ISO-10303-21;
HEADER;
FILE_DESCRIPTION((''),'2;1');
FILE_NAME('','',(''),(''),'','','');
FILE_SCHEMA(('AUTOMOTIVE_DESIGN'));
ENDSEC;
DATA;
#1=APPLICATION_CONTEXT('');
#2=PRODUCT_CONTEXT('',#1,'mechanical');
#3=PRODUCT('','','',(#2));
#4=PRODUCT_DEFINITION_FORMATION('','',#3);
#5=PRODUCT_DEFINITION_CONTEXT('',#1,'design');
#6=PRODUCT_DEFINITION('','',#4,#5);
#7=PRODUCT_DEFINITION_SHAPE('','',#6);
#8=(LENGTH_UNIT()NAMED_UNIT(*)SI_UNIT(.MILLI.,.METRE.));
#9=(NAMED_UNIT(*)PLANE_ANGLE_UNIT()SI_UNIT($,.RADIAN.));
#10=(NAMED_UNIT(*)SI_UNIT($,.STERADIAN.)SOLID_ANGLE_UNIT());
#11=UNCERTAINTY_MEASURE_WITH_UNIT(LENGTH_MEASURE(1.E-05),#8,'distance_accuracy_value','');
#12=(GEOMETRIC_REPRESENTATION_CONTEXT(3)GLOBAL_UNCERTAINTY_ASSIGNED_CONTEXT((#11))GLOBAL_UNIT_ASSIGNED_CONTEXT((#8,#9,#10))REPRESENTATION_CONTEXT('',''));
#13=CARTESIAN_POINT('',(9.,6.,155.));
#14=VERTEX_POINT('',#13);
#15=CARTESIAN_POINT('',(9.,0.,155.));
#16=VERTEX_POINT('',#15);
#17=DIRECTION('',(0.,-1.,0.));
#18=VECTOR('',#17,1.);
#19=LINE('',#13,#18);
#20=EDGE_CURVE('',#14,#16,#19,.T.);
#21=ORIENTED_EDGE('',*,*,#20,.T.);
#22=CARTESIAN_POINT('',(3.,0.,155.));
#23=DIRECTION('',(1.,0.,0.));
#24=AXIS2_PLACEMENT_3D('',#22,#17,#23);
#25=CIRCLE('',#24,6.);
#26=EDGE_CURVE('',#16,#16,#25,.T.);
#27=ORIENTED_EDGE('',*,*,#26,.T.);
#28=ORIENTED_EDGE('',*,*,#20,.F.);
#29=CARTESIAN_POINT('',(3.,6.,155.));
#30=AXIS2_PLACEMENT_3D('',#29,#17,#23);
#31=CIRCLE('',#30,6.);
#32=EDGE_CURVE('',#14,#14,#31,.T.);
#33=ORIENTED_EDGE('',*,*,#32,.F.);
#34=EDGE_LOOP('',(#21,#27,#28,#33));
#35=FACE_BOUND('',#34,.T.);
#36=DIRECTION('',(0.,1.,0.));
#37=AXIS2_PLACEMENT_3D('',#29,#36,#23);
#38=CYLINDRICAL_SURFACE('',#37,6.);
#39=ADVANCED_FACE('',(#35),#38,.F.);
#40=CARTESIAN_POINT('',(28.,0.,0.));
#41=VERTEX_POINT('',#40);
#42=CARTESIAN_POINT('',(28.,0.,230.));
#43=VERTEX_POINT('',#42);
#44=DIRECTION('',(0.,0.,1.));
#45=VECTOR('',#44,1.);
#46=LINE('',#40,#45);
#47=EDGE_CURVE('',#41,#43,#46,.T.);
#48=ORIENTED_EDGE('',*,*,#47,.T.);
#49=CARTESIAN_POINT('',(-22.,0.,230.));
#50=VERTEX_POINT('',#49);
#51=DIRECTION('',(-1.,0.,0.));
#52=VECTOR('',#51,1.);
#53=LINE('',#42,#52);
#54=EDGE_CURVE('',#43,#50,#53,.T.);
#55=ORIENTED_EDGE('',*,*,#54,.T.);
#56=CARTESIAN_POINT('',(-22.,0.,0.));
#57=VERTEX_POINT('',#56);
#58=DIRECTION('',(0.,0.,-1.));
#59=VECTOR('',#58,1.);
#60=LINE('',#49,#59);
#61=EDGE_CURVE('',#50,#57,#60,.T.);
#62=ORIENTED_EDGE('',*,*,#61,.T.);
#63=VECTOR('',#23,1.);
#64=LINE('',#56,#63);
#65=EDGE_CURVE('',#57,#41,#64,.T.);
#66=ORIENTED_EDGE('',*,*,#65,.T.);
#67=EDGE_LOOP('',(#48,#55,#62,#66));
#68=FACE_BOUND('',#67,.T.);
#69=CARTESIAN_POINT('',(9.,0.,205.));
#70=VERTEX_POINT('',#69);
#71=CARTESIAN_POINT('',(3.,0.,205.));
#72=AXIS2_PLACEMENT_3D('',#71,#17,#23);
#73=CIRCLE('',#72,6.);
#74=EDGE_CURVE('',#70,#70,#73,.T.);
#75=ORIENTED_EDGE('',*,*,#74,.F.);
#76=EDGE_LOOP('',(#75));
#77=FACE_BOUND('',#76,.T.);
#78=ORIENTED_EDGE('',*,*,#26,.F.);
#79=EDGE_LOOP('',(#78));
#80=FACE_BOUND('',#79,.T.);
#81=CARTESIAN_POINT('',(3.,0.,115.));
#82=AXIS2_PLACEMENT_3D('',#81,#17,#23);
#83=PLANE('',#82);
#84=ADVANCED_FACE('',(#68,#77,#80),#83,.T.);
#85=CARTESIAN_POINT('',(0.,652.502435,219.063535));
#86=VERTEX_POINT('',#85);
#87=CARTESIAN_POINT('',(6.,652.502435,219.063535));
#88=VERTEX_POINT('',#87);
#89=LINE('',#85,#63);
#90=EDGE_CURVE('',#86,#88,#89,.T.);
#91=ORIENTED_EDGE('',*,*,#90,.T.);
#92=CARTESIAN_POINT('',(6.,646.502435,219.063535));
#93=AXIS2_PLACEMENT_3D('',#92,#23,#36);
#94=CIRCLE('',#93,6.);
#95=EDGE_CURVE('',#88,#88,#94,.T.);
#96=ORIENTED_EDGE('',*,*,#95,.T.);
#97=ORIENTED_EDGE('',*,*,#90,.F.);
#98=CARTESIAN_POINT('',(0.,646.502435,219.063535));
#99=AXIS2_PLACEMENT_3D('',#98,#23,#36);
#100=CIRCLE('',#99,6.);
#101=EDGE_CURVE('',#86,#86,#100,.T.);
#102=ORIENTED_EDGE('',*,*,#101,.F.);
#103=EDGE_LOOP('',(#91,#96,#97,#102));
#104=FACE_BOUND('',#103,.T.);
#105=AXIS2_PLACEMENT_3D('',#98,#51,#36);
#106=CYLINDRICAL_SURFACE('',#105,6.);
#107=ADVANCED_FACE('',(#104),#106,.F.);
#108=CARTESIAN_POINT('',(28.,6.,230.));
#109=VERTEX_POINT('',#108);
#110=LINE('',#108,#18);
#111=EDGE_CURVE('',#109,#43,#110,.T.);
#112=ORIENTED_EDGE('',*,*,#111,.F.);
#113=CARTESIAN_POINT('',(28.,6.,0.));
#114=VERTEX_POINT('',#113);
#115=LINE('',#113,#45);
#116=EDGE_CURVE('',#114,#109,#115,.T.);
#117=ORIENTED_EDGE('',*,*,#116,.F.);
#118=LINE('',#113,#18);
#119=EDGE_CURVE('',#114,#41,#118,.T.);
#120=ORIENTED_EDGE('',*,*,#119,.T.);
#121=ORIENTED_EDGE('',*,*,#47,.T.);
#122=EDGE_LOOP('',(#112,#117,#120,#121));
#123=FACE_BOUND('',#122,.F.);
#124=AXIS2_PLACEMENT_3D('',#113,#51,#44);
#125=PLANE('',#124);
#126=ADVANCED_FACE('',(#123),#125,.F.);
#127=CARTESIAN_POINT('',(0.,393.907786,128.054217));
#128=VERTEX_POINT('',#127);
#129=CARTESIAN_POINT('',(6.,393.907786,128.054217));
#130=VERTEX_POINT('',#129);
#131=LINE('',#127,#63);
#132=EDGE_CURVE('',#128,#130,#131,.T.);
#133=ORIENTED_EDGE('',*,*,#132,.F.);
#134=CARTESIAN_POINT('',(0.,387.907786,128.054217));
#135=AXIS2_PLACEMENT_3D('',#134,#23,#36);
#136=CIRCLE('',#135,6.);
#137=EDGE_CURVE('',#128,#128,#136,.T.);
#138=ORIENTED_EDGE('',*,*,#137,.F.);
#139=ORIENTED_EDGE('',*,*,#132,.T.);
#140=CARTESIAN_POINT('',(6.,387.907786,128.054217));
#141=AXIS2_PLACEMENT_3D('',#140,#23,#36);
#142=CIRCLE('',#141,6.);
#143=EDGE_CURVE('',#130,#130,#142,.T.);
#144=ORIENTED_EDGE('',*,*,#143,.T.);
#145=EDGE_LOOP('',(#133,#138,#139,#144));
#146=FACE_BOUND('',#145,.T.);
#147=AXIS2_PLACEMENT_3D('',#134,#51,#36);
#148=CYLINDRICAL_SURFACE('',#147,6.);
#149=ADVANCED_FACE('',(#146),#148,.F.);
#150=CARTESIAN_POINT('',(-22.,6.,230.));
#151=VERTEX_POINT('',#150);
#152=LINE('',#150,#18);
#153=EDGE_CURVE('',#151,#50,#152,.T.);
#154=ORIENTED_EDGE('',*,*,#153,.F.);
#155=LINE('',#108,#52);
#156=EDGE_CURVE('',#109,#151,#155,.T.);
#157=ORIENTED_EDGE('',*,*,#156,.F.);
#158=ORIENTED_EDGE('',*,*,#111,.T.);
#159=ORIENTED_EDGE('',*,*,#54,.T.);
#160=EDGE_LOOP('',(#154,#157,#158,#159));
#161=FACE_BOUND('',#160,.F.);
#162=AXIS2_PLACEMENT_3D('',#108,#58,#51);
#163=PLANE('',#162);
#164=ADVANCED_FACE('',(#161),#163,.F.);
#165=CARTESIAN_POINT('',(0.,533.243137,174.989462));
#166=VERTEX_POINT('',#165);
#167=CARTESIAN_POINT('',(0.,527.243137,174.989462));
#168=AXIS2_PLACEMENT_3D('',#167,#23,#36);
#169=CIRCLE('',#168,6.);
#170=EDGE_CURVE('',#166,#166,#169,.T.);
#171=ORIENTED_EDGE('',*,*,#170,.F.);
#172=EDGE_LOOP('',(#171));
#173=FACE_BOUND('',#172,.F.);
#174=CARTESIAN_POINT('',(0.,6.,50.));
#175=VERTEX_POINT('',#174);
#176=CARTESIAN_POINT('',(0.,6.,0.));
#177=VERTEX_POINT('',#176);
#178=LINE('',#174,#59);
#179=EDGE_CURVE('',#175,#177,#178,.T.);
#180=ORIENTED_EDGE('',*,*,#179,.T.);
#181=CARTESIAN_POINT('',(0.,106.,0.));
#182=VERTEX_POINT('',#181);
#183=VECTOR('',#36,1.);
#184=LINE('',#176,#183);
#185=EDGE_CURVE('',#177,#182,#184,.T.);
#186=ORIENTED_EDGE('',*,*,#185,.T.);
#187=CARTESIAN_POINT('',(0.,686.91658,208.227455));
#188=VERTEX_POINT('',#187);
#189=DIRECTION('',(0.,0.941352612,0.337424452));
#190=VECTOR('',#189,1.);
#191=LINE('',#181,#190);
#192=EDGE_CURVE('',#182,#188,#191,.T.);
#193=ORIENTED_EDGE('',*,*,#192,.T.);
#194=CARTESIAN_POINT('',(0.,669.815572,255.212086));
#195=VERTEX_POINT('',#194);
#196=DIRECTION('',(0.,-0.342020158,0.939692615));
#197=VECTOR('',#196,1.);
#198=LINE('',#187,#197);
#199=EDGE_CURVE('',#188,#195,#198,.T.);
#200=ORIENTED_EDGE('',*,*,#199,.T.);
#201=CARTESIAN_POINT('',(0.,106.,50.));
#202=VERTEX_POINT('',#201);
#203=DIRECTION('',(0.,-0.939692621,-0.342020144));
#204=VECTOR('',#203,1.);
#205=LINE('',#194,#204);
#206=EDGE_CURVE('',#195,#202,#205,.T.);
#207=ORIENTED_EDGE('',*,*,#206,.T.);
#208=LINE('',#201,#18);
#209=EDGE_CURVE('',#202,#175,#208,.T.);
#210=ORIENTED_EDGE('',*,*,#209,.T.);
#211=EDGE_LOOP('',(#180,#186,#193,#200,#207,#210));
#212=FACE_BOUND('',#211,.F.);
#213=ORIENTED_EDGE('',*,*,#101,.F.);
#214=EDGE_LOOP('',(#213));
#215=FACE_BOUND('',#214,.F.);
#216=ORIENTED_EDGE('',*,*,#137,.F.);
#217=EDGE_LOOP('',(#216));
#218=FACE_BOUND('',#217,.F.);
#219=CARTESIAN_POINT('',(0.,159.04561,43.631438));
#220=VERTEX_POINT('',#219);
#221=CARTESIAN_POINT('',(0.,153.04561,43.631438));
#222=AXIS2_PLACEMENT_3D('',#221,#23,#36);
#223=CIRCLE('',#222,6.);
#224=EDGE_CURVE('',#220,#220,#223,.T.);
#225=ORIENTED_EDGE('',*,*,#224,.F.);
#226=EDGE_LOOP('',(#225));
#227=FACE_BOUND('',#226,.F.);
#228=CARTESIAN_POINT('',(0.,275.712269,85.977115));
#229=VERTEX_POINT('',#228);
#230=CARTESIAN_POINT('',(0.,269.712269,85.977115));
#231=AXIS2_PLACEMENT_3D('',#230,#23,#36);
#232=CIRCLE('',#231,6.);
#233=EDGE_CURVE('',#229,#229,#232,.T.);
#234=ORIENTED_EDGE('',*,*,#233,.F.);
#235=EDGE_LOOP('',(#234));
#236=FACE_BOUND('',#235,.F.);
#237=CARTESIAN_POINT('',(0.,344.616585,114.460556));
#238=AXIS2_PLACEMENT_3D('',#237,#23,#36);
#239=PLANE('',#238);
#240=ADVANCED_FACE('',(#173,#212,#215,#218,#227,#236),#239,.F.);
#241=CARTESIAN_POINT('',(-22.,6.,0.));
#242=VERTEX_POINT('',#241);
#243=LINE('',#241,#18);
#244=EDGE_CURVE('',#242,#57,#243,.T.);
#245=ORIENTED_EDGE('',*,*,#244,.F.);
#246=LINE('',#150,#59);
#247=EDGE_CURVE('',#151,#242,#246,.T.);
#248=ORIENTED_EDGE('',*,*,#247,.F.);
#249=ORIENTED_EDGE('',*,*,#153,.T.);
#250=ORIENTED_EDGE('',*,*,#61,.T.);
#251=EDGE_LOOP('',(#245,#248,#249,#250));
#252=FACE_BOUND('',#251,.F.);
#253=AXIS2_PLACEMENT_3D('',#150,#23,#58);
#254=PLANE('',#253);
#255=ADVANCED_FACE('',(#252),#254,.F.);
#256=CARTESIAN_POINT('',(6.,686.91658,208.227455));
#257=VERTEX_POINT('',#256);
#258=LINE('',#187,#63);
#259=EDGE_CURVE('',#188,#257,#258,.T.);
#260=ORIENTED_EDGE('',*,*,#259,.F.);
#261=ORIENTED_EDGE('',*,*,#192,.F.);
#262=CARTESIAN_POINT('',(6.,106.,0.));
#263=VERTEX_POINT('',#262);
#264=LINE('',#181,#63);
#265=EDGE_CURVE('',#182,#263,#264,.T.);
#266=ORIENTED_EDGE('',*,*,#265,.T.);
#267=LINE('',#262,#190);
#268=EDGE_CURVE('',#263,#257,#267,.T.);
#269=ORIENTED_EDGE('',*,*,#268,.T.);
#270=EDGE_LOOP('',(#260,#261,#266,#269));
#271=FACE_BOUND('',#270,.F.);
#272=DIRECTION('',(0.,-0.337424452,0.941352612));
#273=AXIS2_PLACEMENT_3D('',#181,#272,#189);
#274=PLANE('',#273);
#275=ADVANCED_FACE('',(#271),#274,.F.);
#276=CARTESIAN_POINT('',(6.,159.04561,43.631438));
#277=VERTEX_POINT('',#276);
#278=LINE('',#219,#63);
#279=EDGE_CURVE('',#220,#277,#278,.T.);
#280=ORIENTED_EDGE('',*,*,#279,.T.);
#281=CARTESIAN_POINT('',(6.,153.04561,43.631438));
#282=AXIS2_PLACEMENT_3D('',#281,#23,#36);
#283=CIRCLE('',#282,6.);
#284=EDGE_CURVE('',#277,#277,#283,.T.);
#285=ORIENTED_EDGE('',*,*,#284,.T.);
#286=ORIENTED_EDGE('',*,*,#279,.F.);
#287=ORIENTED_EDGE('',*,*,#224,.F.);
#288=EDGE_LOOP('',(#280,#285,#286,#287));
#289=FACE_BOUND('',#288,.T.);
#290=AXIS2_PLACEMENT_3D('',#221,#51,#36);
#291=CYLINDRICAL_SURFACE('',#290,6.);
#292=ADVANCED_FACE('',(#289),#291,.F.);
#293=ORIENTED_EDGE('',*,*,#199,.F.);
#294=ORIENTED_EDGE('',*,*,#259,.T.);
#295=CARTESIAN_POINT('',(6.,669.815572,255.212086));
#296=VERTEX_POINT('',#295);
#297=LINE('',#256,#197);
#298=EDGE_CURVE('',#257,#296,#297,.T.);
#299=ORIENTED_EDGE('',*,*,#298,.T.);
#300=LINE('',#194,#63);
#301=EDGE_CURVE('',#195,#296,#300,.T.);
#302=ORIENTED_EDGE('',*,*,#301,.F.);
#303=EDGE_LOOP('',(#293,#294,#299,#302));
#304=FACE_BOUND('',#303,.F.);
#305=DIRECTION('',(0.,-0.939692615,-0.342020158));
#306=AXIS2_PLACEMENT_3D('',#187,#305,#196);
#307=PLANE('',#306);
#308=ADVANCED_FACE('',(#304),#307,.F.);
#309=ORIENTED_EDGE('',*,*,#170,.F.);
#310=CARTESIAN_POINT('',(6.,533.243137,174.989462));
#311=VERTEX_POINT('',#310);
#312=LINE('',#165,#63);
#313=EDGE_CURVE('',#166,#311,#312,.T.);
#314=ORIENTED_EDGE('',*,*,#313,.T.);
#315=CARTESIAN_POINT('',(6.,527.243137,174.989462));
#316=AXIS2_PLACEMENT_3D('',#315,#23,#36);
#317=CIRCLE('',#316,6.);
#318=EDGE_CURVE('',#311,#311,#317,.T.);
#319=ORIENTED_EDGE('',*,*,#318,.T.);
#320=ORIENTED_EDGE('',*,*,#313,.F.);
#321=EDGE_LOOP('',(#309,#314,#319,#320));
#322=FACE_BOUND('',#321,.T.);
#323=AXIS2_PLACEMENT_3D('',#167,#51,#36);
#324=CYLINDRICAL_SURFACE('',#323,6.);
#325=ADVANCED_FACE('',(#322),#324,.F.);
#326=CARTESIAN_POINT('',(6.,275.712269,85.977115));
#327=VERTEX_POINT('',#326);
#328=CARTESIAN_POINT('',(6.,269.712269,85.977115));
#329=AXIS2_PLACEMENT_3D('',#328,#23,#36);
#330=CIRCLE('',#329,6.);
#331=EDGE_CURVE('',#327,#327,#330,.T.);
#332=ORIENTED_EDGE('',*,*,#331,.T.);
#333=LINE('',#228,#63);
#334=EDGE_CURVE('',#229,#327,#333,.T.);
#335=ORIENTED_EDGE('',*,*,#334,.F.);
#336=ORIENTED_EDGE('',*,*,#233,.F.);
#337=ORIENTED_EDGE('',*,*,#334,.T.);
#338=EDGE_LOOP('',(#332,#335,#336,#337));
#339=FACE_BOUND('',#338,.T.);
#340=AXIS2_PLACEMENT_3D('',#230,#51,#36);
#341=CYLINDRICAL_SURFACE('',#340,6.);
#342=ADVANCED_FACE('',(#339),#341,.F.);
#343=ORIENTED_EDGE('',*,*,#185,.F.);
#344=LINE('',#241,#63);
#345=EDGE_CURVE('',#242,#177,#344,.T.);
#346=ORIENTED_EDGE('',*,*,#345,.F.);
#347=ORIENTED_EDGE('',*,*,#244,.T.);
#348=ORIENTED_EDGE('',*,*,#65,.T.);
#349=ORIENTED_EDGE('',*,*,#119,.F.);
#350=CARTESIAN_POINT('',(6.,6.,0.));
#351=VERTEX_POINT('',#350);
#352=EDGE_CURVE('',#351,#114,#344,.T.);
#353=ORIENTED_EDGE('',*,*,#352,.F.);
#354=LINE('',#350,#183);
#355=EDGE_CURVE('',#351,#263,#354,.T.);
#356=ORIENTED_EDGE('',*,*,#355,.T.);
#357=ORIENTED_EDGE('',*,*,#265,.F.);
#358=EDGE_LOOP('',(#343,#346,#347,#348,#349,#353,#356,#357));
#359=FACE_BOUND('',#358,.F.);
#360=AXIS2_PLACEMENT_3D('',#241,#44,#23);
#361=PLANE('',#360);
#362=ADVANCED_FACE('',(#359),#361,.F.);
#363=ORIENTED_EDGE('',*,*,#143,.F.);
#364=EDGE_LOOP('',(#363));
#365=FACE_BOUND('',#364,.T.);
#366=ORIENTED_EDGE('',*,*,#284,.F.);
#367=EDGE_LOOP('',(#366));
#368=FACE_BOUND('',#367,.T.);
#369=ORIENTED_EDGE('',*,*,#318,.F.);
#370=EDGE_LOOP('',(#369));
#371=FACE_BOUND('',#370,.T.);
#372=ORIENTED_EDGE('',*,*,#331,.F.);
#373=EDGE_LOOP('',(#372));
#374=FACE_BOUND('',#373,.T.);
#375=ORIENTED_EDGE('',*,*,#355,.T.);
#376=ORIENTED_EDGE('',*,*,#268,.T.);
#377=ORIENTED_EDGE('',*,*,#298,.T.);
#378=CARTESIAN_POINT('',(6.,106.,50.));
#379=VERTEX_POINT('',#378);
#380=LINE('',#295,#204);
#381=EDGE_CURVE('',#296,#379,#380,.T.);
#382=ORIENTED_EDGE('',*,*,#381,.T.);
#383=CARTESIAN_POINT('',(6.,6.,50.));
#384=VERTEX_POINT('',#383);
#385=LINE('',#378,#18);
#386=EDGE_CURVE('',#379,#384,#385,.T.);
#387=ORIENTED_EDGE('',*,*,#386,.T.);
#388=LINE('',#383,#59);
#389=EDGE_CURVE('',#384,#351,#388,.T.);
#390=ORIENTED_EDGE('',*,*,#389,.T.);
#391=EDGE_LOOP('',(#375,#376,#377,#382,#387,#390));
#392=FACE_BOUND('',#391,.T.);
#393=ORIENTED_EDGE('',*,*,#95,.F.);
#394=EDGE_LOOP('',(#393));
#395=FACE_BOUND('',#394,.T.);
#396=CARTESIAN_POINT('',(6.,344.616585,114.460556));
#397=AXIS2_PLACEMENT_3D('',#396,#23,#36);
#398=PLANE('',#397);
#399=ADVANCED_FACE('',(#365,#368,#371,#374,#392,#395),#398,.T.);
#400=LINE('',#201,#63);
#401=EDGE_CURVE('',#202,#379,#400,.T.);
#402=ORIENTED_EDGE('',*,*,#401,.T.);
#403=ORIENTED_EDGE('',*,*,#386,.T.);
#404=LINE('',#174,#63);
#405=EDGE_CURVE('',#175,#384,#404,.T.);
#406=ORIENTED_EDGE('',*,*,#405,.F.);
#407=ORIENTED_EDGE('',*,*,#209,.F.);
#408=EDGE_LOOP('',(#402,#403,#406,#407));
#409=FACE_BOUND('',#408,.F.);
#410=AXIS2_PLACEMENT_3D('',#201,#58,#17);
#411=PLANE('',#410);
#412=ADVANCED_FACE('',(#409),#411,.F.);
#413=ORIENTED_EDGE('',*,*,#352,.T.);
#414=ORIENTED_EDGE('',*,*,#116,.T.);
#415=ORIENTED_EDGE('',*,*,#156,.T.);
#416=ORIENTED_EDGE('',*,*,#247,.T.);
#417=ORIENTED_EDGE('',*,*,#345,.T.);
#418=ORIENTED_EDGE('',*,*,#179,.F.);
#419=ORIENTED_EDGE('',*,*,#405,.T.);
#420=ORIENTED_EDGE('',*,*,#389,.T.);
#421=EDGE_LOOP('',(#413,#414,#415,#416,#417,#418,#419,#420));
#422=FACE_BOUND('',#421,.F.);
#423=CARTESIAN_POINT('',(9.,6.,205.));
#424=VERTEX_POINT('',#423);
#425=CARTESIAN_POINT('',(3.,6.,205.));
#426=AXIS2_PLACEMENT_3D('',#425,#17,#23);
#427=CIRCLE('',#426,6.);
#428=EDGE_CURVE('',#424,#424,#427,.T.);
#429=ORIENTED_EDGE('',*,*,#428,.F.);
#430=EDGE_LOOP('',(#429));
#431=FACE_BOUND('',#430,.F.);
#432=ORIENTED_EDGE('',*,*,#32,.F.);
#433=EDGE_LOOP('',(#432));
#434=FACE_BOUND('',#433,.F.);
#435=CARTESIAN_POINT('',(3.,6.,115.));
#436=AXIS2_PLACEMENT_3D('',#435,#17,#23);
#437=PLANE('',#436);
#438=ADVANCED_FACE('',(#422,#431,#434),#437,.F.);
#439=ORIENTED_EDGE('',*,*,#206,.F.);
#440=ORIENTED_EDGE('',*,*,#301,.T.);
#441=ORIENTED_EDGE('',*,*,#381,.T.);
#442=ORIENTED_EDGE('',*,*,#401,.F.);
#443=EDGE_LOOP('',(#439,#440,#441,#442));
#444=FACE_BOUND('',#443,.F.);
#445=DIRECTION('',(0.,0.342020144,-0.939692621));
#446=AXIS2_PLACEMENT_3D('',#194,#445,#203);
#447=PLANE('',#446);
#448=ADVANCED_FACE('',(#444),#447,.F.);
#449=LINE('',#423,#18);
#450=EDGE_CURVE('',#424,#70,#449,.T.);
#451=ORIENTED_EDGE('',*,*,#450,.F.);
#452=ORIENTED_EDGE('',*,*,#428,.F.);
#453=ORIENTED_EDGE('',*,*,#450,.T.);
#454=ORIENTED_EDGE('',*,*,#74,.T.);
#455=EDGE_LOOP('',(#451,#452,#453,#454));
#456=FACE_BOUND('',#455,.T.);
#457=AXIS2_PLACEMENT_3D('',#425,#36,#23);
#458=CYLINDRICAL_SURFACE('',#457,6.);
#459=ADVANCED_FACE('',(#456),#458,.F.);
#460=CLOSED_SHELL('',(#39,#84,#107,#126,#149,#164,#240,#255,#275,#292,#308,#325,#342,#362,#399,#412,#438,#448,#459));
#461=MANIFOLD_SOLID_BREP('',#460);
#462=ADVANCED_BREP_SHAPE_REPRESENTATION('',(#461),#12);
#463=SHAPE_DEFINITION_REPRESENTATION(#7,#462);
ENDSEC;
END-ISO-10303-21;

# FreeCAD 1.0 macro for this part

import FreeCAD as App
import Part
import Sketcher
from FreeCAD import Vector
Q = App.Units.Quantity

doc = App.newDocument("Part")
body = doc.addObject("PartDesign::Body", "Body")

# Sketch on YZ plane
sketch1 = doc.addObject("Sketcher::SketchObject", "Sketch")
body.addObject(sketch1)
sketch1.AttachmentSupport = (doc.YZ_Plane, [""])
sketch1.MapMode = "FlatFace"
sketch1.addGeometry([
    Part.LineSegment(Vector(106, 50, 0), Vector(6, 50, 0)),  # 0
    Part.LineSegment(Vector(6, 50, 0), Vector(6, 0, 0)),  # 1
    Part.LineSegment(Vector(6, 0, 0), Vector(106, 0, 0)),  # 2
    Part.LineSegment(Vector(106, 0, 0), Vector(686.91658, 208.227455, 0)),  # 3
    Part.LineSegment(Vector(686.91658, 208.227455, 0), Vector(669.815572, 255.212086, 0)),  # 4
    Part.LineSegment(Vector(669.815572, 255.212086, 0), Vector(106, 50, 0)),  # 5
    Part.Circle(Vector(153.04561, 43.631438, 0), Vector(0, 0, 1), 6),  # 6
    Part.Circle(Vector(269.712269, 85.977115, 0), Vector(0, 0, 1), 6),  # 7
    Part.Circle(Vector(387.907786, 128.054217, 0), Vector(0, 0, 1), 6),  # 8
    Part.Circle(Vector(527.243137, 174.989462, 0), Vector(0, 0, 1), 6),  # 9
    Part.Circle(Vector(646.502435, 219.063535, 0), Vector(0, 0, 1), 6),  # 10
], False)
sketch1.addConstraint([
    Sketcher.Constraint("Coincident", 0, 2, 1, 1),
    Sketcher.Constraint("Coincident", 1, 2, 2, 1),
    Sketcher.Constraint("Coincident", 2, 2, 3, 1),
    Sketcher.Constraint("Coincident", 3, 2, 4, 1),
    Sketcher.Constraint("Coincident", 4, 2, 5, 1),
    Sketcher.Constraint("Coincident", 5, 2, 0, 1),
    Sketcher.Constraint("Horizontal", 0),
    Sketcher.Constraint("Vertical", 1),
    Sketcher.Constraint("Horizontal", 2),
    Sketcher.Constraint("Equal", 6, 7),
    Sketcher.Constraint("Equal", 7, 8),
    Sketcher.Constraint("Equal", 8, 9),
    Sketcher.Constraint("Equal", 9, 10),
    Sketcher.Constraint("PointOnObject", 1, 2, -1),
    Sketcher.Constraint("Perpendicular", 4, 5),
    Sketcher.Constraint("Vertical", 2, 2, 5, 2),
    Sketcher.Constraint("Diameter", 6, Q("12 mm")),
    Sketcher.Constraint("DistanceX", 0, 2, 0, 1, Q("100 mm")),
    Sketcher.Constraint("DistanceY", 1, 2, 1, 1, Q("50 mm")),
    Sketcher.Constraint("Angle", 4, Q("110.000001 deg")),
    Sketcher.Constraint("Distance", 4, Q("50 mm")),
    Sketcher.Constraint("Distance", 5, Q("600 mm")),
    Sketcher.Constraint("DistanceX", -1, 1, 0, 2, Q("6 mm")),
    Sketcher.Constraint("DistanceY", 7, 3, 8, 3, Q("42.077102 mm")),
    Sketcher.Constraint("DistanceX", -1, 1, 6, 3, Q("153.04561 mm")),
    Sketcher.Constraint("DistanceY", -1, 1, 6, 3, Q("43.631438 mm")),
    Sketcher.Constraint("DistanceX", -1, 1, 7, 3, Q("269.712269 mm")),
    Sketcher.Constraint("DistanceY", -1, 1, 9, 3, Q("174.989462 mm")),
    Sketcher.Constraint("DistanceY", 6, 3, 8, 3, Q("84.422779 mm")),
    Sketcher.Constraint("DistanceX", 8, 3, 9, 3, Q("139.335351 mm")),
    Sketcher.Constraint("DistanceX", 7, 3, 9, 3, Q("257.530868 mm")),
    Sketcher.Constraint("DistanceX", 8, 3, 10, 3, Q("258.594649 mm")),
    Sketcher.Constraint("DistanceY", 8, 3, 10, 3, Q("91.009318 mm")),
])
pad1 = doc.addObject("PartDesign::Pad", "Pad")
body.addObject(pad1)
pad1.Profile = sketch1
pad1.Length = 6

# Sketch on XZ plane
sketch2 = doc.addObject("Sketcher::SketchObject", "Sketch001")
body.addObject(sketch2)
sketch2.AttachmentSupport = (doc.XZ_Plane, [""])
sketch2.MapMode = "FlatFace"
sketch2.AttachmentOffset = App.Placement(Vector(0, 0, -6), App.Rotation())
sketch2.addGeometry([
    Part.LineSegment(Vector(-22, 0, 0), Vector(28, 0, 0)),  # 0
    Part.LineSegment(Vector(28, 0, 0), Vector(28, 230, 0)),  # 1
    Part.LineSegment(Vector(28, 230, 0), Vector(-22, 230, 0)),  # 2
    Part.LineSegment(Vector(-22, 230, 0), Vector(-22, 0, 0)),  # 3
    Part.Circle(Vector(3, 155, 0), Vector(0, 0, 1), 6),  # 4
    Part.Circle(Vector(3, 205, 0), Vector(0, 0, 1), 6),  # 5
], False)
sketch2.addConstraint([
    Sketcher.Constraint("Coincident", 0, 2, 1, 1),
    Sketcher.Constraint("Coincident", 1, 2, 2, 1),
    Sketcher.Constraint("Coincident", 2, 2, 3, 1),
    Sketcher.Constraint("Coincident", 3, 2, 0, 1),
    Sketcher.Constraint("Horizontal", 0),
    Sketcher.Constraint("Vertical", 1),
    Sketcher.Constraint("Horizontal", 2),
    Sketcher.Constraint("Vertical", 3),
    Sketcher.Constraint("Equal", 4, 5),
    Sketcher.Constraint("PointOnObject", 0, 2, -1),
    Sketcher.Constraint("Vertical", 4, 3, 5, 3),
    Sketcher.Constraint("Diameter", 4, Q("12 mm")),
    Sketcher.Constraint("DistanceX", 0, 1, 0, 2, Q("50 mm")),
    Sketcher.Constraint("DistanceY", 1, 1, 1, 2, Q("230 mm")),
    Sketcher.Constraint("DistanceX", -1, 1, 4, 3, Q("3 mm")),
    Sketcher.Constraint("DistanceY", -1, 1, 4, 3, Q("155 mm")),
    Sketcher.Constraint("DistanceY", -1, 1, 5, 3, Q("205 mm")),
    Sketcher.Constraint("DistanceX", -1, 1, 0, 2, Q("28 mm")),
])
pad2 = doc.addObject("PartDesign::Pad", "Pad001")
body.addObject(pad2)
pad2.Profile = sketch2
pad2.Length = 6

doc.recompute()
